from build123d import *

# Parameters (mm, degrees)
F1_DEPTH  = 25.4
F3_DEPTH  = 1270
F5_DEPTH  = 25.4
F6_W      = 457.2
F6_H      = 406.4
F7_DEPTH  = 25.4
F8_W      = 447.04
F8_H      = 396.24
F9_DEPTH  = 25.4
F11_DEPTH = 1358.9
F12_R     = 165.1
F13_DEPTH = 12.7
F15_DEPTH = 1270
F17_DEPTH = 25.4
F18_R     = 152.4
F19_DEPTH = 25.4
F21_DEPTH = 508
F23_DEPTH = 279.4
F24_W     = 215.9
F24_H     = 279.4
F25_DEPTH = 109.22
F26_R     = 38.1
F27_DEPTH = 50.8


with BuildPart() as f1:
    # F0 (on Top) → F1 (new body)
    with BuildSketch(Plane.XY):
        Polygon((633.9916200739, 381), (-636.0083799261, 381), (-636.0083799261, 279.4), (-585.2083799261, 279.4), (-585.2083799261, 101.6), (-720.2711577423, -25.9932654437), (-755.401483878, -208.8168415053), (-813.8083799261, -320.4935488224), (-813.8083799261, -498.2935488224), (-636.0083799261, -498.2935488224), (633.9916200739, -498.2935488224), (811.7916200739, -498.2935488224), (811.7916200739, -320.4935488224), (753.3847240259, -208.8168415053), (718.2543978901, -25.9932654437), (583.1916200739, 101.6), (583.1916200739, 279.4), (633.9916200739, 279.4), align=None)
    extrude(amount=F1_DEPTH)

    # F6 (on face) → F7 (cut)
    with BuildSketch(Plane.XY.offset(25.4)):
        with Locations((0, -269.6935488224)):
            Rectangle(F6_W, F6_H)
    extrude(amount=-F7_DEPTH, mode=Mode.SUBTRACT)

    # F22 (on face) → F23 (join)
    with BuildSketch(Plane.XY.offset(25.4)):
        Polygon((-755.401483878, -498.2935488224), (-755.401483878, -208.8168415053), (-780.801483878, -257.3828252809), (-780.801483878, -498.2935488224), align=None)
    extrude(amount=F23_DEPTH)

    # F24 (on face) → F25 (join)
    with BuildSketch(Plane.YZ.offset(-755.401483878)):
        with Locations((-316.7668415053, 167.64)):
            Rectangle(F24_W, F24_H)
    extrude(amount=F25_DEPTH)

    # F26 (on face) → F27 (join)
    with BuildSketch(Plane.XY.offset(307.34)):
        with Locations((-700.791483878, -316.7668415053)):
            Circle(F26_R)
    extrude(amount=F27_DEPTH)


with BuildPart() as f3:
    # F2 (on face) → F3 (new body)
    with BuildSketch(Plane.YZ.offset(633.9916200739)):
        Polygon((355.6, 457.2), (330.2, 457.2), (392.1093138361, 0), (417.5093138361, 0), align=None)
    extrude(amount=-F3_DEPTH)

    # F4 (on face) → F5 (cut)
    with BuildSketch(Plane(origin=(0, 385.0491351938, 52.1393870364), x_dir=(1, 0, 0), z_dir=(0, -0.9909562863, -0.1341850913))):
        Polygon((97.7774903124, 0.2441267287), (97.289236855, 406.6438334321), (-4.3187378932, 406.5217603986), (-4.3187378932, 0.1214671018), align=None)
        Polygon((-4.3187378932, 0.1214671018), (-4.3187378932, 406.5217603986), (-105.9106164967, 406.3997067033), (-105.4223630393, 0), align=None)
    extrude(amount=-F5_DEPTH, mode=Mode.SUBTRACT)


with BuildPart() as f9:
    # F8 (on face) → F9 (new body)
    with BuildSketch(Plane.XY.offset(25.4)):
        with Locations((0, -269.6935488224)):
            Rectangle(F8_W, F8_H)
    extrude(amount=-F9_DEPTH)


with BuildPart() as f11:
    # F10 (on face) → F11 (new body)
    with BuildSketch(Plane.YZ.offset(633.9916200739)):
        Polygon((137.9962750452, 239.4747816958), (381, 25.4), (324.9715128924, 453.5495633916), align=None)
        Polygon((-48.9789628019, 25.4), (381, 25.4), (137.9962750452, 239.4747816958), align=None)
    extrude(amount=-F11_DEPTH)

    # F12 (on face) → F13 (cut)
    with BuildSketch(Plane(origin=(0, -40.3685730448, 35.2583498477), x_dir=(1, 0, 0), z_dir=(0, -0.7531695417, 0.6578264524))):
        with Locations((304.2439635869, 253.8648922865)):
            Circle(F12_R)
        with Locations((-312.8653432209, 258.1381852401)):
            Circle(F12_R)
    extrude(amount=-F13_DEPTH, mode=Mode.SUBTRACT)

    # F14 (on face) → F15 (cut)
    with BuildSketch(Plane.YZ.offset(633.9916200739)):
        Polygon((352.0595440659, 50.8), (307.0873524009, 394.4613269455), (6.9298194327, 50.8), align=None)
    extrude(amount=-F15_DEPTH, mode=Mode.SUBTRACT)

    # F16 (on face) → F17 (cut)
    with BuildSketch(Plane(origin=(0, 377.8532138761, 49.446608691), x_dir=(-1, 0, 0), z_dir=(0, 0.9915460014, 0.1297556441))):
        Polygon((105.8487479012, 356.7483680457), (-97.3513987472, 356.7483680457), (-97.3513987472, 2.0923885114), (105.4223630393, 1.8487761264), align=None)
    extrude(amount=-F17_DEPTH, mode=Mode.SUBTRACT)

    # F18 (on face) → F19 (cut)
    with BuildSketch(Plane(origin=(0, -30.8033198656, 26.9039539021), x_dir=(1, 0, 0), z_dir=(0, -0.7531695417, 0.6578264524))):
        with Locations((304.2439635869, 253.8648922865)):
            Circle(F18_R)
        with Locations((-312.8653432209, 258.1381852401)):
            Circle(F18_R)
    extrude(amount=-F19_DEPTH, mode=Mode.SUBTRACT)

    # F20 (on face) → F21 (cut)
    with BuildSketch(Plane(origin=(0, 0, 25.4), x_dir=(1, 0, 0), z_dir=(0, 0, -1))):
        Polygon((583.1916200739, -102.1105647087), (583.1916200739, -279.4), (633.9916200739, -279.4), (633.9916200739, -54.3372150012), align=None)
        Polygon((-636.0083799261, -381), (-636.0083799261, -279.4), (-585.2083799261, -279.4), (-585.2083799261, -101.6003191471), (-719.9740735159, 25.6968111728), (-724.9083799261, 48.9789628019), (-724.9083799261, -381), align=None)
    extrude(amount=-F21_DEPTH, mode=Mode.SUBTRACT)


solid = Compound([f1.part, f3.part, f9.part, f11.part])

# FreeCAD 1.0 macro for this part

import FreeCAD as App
import Part
import Sketcher
from FreeCAD import Vector
Q = App.Units.Quantity

doc = App.newDocument("Part")
body = doc.addObject("PartDesign::Body", "Body")

# Sketch on XY plane
sketch1 = body.newObject("Sketcher::SketchObject", "Sketch")
sketch1.AttachmentSupport = (doc.getObject("XY_Plane"), [""])
sketch1.MapMode = "FlatFace"
sketch1.addGeometry([
    Part.LineSegment(Vector(634, 381, 0), Vector(-636, 381, 0)),  # 0
    Part.LineSegment(Vector(-636, 381, 0), Vector(-636, 279, 0)),  # 1
    Part.LineSegment(Vector(-636, 279, 0), Vector(-585, 279, 0)),  # 2
    Part.LineSegment(Vector(-585, 279, 0), Vector(-585, 102, 0)),  # 3
    Part.LineSegment(Vector(-585, 102, 0), Vector(-720, -26, 0)),  # 4
    Part.LineSegment(Vector(-720, -26, 0), Vector(-755, -209, 0)),  # 5
    Part.LineSegment(Vector(-755, -209, 0), Vector(-814, -320, 0)),  # 6
    Part.LineSegment(Vector(-814, -320, 0), Vector(-814, -498, 0)),  # 7
    Part.LineSegment(Vector(-814, -498, 0), Vector(812, -498, 0)),  # 8
    Part.LineSegment(Vector(812, -498, 0), Vector(812, -320, 0)),  # 9
    Part.LineSegment(Vector(812, -320, 0), Vector(753, -209, 0)),  # 10
    Part.LineSegment(Vector(753, -209, 0), Vector(718, -26, 0)),  # 11
    Part.LineSegment(Vector(718, -26, 0), Vector(583, 102, 0)),  # 12
    Part.LineSegment(Vector(583, 102, 0), Vector(583, 279, 0)),  # 13
    Part.LineSegment(Vector(583, 279, 0), Vector(634, 279, 0)),  # 14
    Part.LineSegment(Vector(634, 279, 0), Vector(634, 381, 0)),  # 15
], False)
sketch1.addConstraint([
    Sketcher.Constraint("Coincident", 0, 2, 1, 1),
    Sketcher.Constraint("Coincident", 1, 2, 2, 1),
    Sketcher.Constraint("Coincident", 2, 2, 3, 1),
    Sketcher.Constraint("Coincident", 3, 2, 4, 1),
    Sketcher.Constraint("Coincident", 4, 2, 5, 1),
    Sketcher.Constraint("Coincident", 5, 2, 6, 1),
    Sketcher.Constraint("Coincident", 6, 2, 7, 1),
    Sketcher.Constraint("Coincident", 7, 2, 8, 1),
    Sketcher.Constraint("Coincident", 8, 2, 9, 1),
    Sketcher.Constraint("Coincident", 9, 2, 10, 1),
    Sketcher.Constraint("Coincident", 10, 2, 11, 1),
    Sketcher.Constraint("Coincident", 11, 2, 12, 1),
    Sketcher.Constraint("Coincident", 12, 2, 13, 1),
    Sketcher.Constraint("Coincident", 13, 2, 14, 1),
    Sketcher.Constraint("Coincident", 14, 2, 15, 1),
    Sketcher.Constraint("Coincident", 15, 2, 0, 1),
    Sketcher.Constraint("Horizontal", 0),
    Sketcher.Constraint("Vertical", 1),
    Sketcher.Constraint("Horizontal", 2),
    Sketcher.Constraint("Vertical", 3),
    Sketcher.Constraint("Vertical", 7),
    Sketcher.Constraint("Horizontal", 8),
    Sketcher.Constraint("Vertical", 9),
    Sketcher.Constraint("Vertical", 13),
    Sketcher.Constraint("Horizontal", 14),
    Sketcher.Constraint("Vertical", 15),
    Sketcher.Constraint("Horizontal", 6, 2, 9, 2),
    Sketcher.Constraint("Horizontal", 5, 2, 10, 2),
    Sketcher.Constraint("Horizontal", 4, 2, 11, 2),
    Sketcher.Constraint("Horizontal", 3, 2, 12, 2),
    Sketcher.Constraint("Horizontal", 2, 2, 13, 2),
    Sketcher.Constraint("Equal", 2, 14),
    Sketcher.Constraint("Equal", 3, 7),
    Sketcher.Constraint("Equal", 6, 10),
    Sketcher.Constraint("Equal", 5, 11),
    Sketcher.Constraint("Equal", 4, 12),
    Sketcher.Constraint("DistanceX", 0, 2, 0, 1, Q("50 in")),
    Sketcher.Constraint("DistanceX", 2, 1, 2, 2, Q("2 in")),
    Sketcher.Constraint("DistanceX", 8, 1, 8, 2, Q("64 in")),
    Sketcher.Constraint("DistanceY", 1, 2, 1, 1, Q("4 in")),
    Sketcher.Constraint("DistanceY", 3, 2, 3, 1, Q("7 in")),
    Sketcher.Constraint("DistanceY", -1, 1, 0, 2, Q("15 in")),
    Sketcher.Constraint("DistanceX", 0, 2, -1, 1, Q("25.0397 in")),
    Sketcher.Constraint("DistanceY", 5, 2, -1, 1, Q("208.816842 mm")),
    Sketcher.Constraint("DistanceY", 6, 2, -1, 1, Q("320.493549 mm")),
    Sketcher.Constraint("Distance", 4, Q("185.800956 mm")),
    Sketcher.Constraint("Distance", 5, Q("186.168203 mm")),
    Sketcher.Constraint("Distance", 6, Q("126.027983 mm")),
])
pad1 = body.newObject("PartDesign::Pad", "Pad")
pad1.Profile = sketch1
pad1.Length = Q("1 in")

# Sketch on XY plane
sketch2 = body.newObject("Sketcher::SketchObject", "Sketch001")
sketch2.AttachmentSupport = (doc.getObject("XY_Plane"), [""])
sketch2.MapMode = "FlatFace"
sketch2.AttachmentOffset = App.Placement(Vector(0, 0, 1 * 25.4), App.Rotation())
sketch2.addGeometry([
    Part.LineSegment(Vector(-229, -66, 0), Vector(-229, -473, 0)),
    Part.LineSegment(Vector(-229, -473, 0), Vector(229, -473, 0)),
    Part.LineSegment(Vector(229, -473, 0), Vector(229, -66, 0)),
    Part.LineSegment(Vector(229, -66, 0), Vector(-229, -66, 0)),
], False)
sketch2.addConstraint([
    Sketcher.Constraint("Coincident", 0, 2, 1, 1),
    Sketcher.Constraint("Coincident", 1, 2, 2, 1),
    Sketcher.Constraint("Coincident", 2, 2, 3, 1),
    Sketcher.Constraint("Coincident", 3, 2, 0, 1),
    Sketcher.Constraint("Vertical", 0),
    Sketcher.Constraint("Horizontal", 1),
    Sketcher.Constraint("Vertical", 2),
    Sketcher.Constraint("Horizontal", 3),
    Sketcher.Constraint("DistanceX", 1, 1, 1, 2, Q("18 in")),
    Sketcher.Constraint("DistanceY", 0, 2, 0, 1, Q("16 in")),
    Sketcher.Constraint("DistanceX", 0, 2, -1, 1, Q("9 in")),
    Sketcher.Constraint("DistanceY", 0, 2, -1, 1, Q("472.893549 mm")),
])
pocket1 = body.newObject("PartDesign::Pocket", "Pocket")
pocket1.Profile = sketch2
pocket1.Length = Q("1 in")

# Sketch on XY plane
sketch3 = body.newObject("Sketcher::SketchObject", "Sketch002")
sketch3.AttachmentSupport = (doc.getObject("XY_Plane"), [""])
sketch3.MapMode = "FlatFace"
sketch3.AttachmentOffset = App.Placement(Vector(0, 0, 1 * 25.4), App.Rotation())
sketch3.addGeometry([
    Part.LineSegment(Vector(-755, -498, 0), Vector(-755, -209, 0)),
    Part.LineSegment(Vector(-755, -209, 0), Vector(-781, -257, 0)),
    Part.LineSegment(Vector(-781, -257, 0), Vector(-781, -498, 0)),
    Part.LineSegment(Vector(-781, -498, 0), Vector(-755, -498, 0)),
], False)
sketch3.addConstraint([
    Sketcher.Constraint("Coincident", 0, 2, 1, 1),
    Sketcher.Constraint("Coincident", 1, 2, 2, 1),
    Sketcher.Constraint("Coincident", 2, 2, 3, 1),
    Sketcher.Constraint("Coincident", 3, 2, 0, 1),
    Sketcher.Constraint("Vertical", 0),
    Sketcher.Constraint("Vertical", 2),
    Sketcher.Constraint("Horizontal", 3),
    Sketcher.Constraint("DistanceX", 3, 1, 3, 2, Q("1 in")),
    Sketcher.Constraint("Distance", 1, Q("54.807069 mm")),
    Sketcher.Constraint("DistanceY", 0, 1, 0, 2, Q("289.476707 mm")),
    Sketcher.Constraint("DistanceY", 0, 2, -1, 1, Q("208.816842 mm")),
    Sketcher.Constraint("DistanceX", 0, 2, -1, 1, Q("755.401484 mm")),
])
pad2 = body.newObject("PartDesign::Pad", "Pad001")
pad2.Profile = sketch3
pad2.Length = Q("11 in")

# Sketch on YZ plane
sketch4 = body.newObject("Sketcher::SketchObject", "Sketch003")
sketch4.AttachmentSupport = (doc.getObject("YZ_Plane"), [""])
sketch4.MapMode = "FlatFace"
sketch4.AttachmentOffset = App.Placement(Vector(0, 0, -755.401484), App.Rotation())
sketch4.addGeometry([
    Part.LineSegment(Vector(-425, 307, 0), Vector(-425, 28, 0)),
    Part.LineSegment(Vector(-425, 28, 0), Vector(-209, 28, 0)),
    Part.LineSegment(Vector(-209, 28, 0), Vector(-209, 307, 0)),
    Part.LineSegment(Vector(-209, 307, 0), Vector(-425, 307, 0)),
], False)
sketch4.addConstraint([
    Sketcher.Constraint("Coincident", 0, 2, 1, 1),
    Sketcher.Constraint("Coincident", 1, 2, 2, 1),
    Sketcher.Constraint("Coincident", 2, 2, 3, 1),
    Sketcher.Constraint("Coincident", 3, 2, 0, 1),
    Sketcher.Constraint("Vertical", 0),
    Sketcher.Constraint("Horizontal", 1),
    Sketcher.Constraint("Vertical", 2),
    Sketcher.Constraint("Horizontal", 3),
    Sketcher.Constraint("DistanceY", 0, 2, 0, 1, Q("11 in")),
    Sketcher.Constraint("DistanceX", 1, 1, 1, 2, Q("8.5 in")),
    Sketcher.Constraint("DistanceY", -1, 1, 0, 2, Q("1.1 in")),
    Sketcher.Constraint("DistanceX", 0, 2, -1, 1, Q("424.716842 mm")),
])
pad3 = body.newObject("PartDesign::Pad", "Pad002")
pad3.Profile = sketch4
pad3.Length = Q("4.3 in")

# Sketch on XY plane
sketch5 = body.newObject("Sketcher::SketchObject", "Sketch004")
sketch5.AttachmentSupport = (doc.getObject("XY_Plane"), [""])
sketch5.MapMode = "FlatFace"
sketch5.AttachmentOffset = App.Placement(Vector(0, 0, 12.1 * 25.4), App.Rotation())
sketch5.addGeometry(Part.Circle(Vector(-701, -317, 0), Vector(0, 0, 1), 38), False)
sketch5.addConstraint([
    Sketcher.Constraint("Diameter", 0, Q("3 in")),
    Sketcher.Constraint("DistanceY", 0, 3, -1, 1, Q("316.766842 mm")),
    Sketcher.Constraint("DistanceX", 0, 3, -1, 1, Q("700.791484 mm")),
])
pad4 = body.newObject("PartDesign::Pad", "Pad003")
pad4.Profile = sketch5
pad4.Length = Q("2 in")
body2 = doc.addObject("PartDesign::Body", "Body001")

# Sketch on YZ plane
sketch6 = body2.newObject("Sketcher::SketchObject", "Sketch005")
sketch6.AttachmentSupport = (doc.getObject("YZ_Plane001"), [""])
sketch6.MapMode = "FlatFace"
sketch6.AttachmentOffset = App.Placement(Vector(0, 0, 24.9603 * 25.4), App.Rotation())
sketch6.addGeometry([
    Part.LineSegment(Vector(356, 457, 0), Vector(330, 457, 0)),
    Part.LineSegment(Vector(330, 457, 0), Vector(392, 0, 0)),
    Part.LineSegment(Vector(392, 0, 0), Vector(418, 0, 0)),
    Part.LineSegment(Vector(418, 0, 0), Vector(356, 457, 0)),
], False)
sketch6.addConstraint([
    Sketcher.Constraint("Coincident", 0, 2, 1, 1),
    Sketcher.Constraint("Coincident", 1, 2, 2, 1),
    Sketcher.Constraint("Coincident", 2, 2, 3, 1),
    Sketcher.Constraint("Coincident", 3, 2, 0, 1),
    Sketcher.Constraint("Horizontal", 0),
    Sketcher.Constraint("Horizontal", 2),
    Sketcher.Constraint("PointOnObject", 1, 2, -1),
    Sketcher.Constraint("Parallel", 1, 3),
    Sketcher.Constraint("DistanceX", 0, 2, 0, 1, Q("1 in")),
    Sketcher.Constraint("DistanceX", -1, 1, 0, 2, Q("13 in")),
    Sketcher.Constraint("DistanceY", -1, 1, 0, 2, Q("18 in")),
    Sketcher.Constraint("Distance", 1, Q("461.372521 mm")),
])
pad5 = body2.newObject("PartDesign::Pad", "Pad004")
pad5.Profile = sketch6
pad5.Length = Q("50 in")
pad5.Reversed = True

# Sketch on an angled plane
sketch7 = body2.newObject("Sketcher::SketchObject", "Sketch006")
sketch7.Placement = App.Placement(Vector(0, 385.049135, 52.139387), App.Rotation(Vector(1, 0, 0), Vector(0, -0.134185091, 0.990956286), Vector(0, -0.990956286, -0.134185091), "ZXY"))
sketch7.addGeometry([
    Part.LineSegment(Vector(98, 0, 0), Vector(97, 407, 0)),
    Part.LineSegment(Vector(97, 407, 0), Vector(-106, 406, 0)),
    Part.LineSegment(Vector(-106, 406, 0), Vector(-105, 0, 0)),
    Part.LineSegment(Vector(-105, 0, 0), Vector(98, 0, 0)),
], False)
sketch7.addConstraint([
    Sketcher.Constraint("Coincident", 0, 2, 1, 1),
    Sketcher.Constraint("Coincident", 1, 2, 2, 1),
    Sketcher.Constraint("Coincident", 2, 2, 3, 1),
    Sketcher.Constraint("Coincident", 3, 2, 0, 1),
    Sketcher.Constraint("PointOnObject", 2, 2, -1),
    Sketcher.Constraint("Perpendicular", 0, 1),
    Sketcher.Constraint("Perpendicular", 1, 2),
    Sketcher.Constraint("Perpendicular", 2, 3),
    Sketcher.Constraint("Distance", 0, Q("16 in")),
    Sketcher.Constraint("Distance", 1, Q("8 in")),
    Sketcher.Constraint("DistanceX", 2, 2, 0, 2, Q("202.7116 mm")),
    Sketcher.Constraint("DistanceX", -1, 1, 3, 2, Q("97.77749 mm")),
])
pocket2 = body2.newObject("PartDesign::Pocket", "Pocket001")
pocket2.Profile = sketch7
pocket2.Length = Q("1 in")
body3 = doc.addObject("PartDesign::Body", "Body002")

# Sketch on XY plane
sketch8 = body3.newObject("Sketcher::SketchObject", "Sketch007")
sketch8.AttachmentSupport = (doc.getObject("XY_Plane002"), [""])
sketch8.MapMode = "FlatFace"
sketch8.AttachmentOffset = App.Placement(Vector(0, 0, 1 * 25.4), App.Rotation())
sketch8.addGeometry([
    Part.LineSegment(Vector(-224, -72, 0), Vector(-224, -468, 0)),
    Part.LineSegment(Vector(-224, -468, 0), Vector(224, -468, 0)),
    Part.LineSegment(Vector(224, -468, 0), Vector(224, -72, 0)),
    Part.LineSegment(Vector(224, -72, 0), Vector(-224, -72, 0)),
], False)
sketch8.addConstraint([
    Sketcher.Constraint("Coincident", 0, 2, 1, 1),
    Sketcher.Constraint("Coincident", 1, 2, 2, 1),
    Sketcher.Constraint("Coincident", 2, 2, 3, 1),
    Sketcher.Constraint("Coincident", 3, 2, 0, 1),
    Sketcher.Constraint("Vertical", 0),
    Sketcher.Constraint("Horizontal", 1),
    Sketcher.Constraint("Vertical", 2),
    Sketcher.Constraint("Horizontal", 3),
    Sketcher.Constraint("DistanceX", 1, 1, 1, 2, Q("17.6 in")),
    Sketcher.Constraint("DistanceY", 0, 2, 0, 1, Q("15.6 in")),
    Sketcher.Constraint("DistanceX", 0, 2, -1, 1, Q("8.8 in")),
    Sketcher.Constraint("DistanceY", 0, 2, -1, 1, Q("467.813549 mm")),
])
pad6 = body3.newObject("PartDesign::Pad", "Pad005")
pad6.Profile = sketch8
pad6.Length = Q("1 in")
pad6.Reversed = True
body4 = doc.addObject("PartDesign::Body", "Body003")

# Sketch on YZ plane
sketch9 = body4.newObject("Sketcher::SketchObject", "Sketch008")
sketch9.AttachmentSupport = (doc.getObject("YZ_Plane003"), [""])
sketch9.MapMode = "FlatFace"
sketch9.AttachmentOffset = App.Placement(Vector(0, 0, 24.9603 * 25.4), App.Rotation())
sketch9.addGeometry([
    Part.LineSegment(Vector(381, 25, 0), Vector(325, 454, 0)),
    Part.LineSegment(Vector(325, 454, 0), Vector(-49, 25, 0)),
    Part.LineSegment(Vector(-49, 25, 0), Vector(381, 25, 0)),
], False)
sketch9.addConstraint([
    Sketcher.Constraint("Coincident", 0, 2, 1, 1),
    Sketcher.Constraint("Coincident", 1, 2, 2, 1),
    Sketcher.Constraint("Coincident", 2, 2, 0, 1),
    Sketcher.Constraint("Horizontal", 2),
    Sketcher.Constraint("Distance", 0, Q("17 in")),
    Sketcher.Constraint("DistanceY", -1, 1, 1, 2, Q("1 in")),
    Sketcher.Constraint("DistanceX", -1, 1, 2, 2, Q("15 in")),
    Sketcher.Constraint("DistanceX", 2, 1, 2, 2, Q("429.978963 mm")),
    Sketcher.Constraint("Distance", 1, Q("568.463725 mm")),
])
pad7 = body4.newObject("PartDesign::Pad", "Pad006")
pad7.Profile = sketch9
pad7.Length = Q("53.5 in")
pad7.Reversed = True

# Sketch on an angled plane
sketch10 = body4.newObject("Sketcher::SketchObject", "Sketch009")
sketch10.Placement = App.Placement(Vector(0, -40.368573, 35.25835), App.Rotation(Vector(1, 0, 0), Vector(0, 0.657826452, 0.753169542), Vector(0, -0.753169542, 0.657826452), "ZXY"))
sketch10.addGeometry([
    Part.Circle(Vector(304, 254, 0), Vector(0, 0, 1), 165),
    Part.Circle(Vector(-313, 258, 0), Vector(0, 0, 1), 165),
], False)
sketch10.addConstraint([
    Sketcher.Constraint("Equal", 0, 1),
    Sketcher.Constraint("Diameter", 0, Q("13 in")),
    Sketcher.Constraint("DistanceX", -1, 1, 0, 3, Q("304.243964 mm")),
    Sketcher.Constraint("DistanceY", -1, 1, 0, 3, Q("253.864892 mm")),
    Sketcher.Constraint("DistanceX", 1, 3, -1, 1, Q("312.865343 mm")),
    Sketcher.Constraint("DistanceY", -1, 1, 1, 3, Q("258.138185 mm")),
])
pocket3 = body4.newObject("PartDesign::Pocket", "Pocket002")
pocket3.Profile = sketch10
pocket3.Length = Q("0.5 in")

# Sketch on YZ plane
sketch11 = body4.newObject("Sketcher::SketchObject", "Sketch010")
sketch11.AttachmentSupport = (doc.getObject("YZ_Plane003"), [""])
sketch11.MapMode = "FlatFace"
sketch11.AttachmentOffset = App.Placement(Vector(0, 0, 24.9603 * 25.4), App.Rotation())
sketch11.addGeometry([
    Part.LineSegment(Vector(352, 51, 0), Vector(307, 394, 0)),
    Part.LineSegment(Vector(307, 394, 0), Vector(7, 51, 0)),
    Part.LineSegment(Vector(7, 51, 0), Vector(352, 51, 0)),
], False)
sketch11.addConstraint([
    Sketcher.Constraint("Coincident", 0, 2, 1, 1),
    Sketcher.Constraint("Coincident", 1, 2, 2, 1),
    Sketcher.Constraint("Coincident", 2, 2, 0, 1),
    Sketcher.Constraint("Horizontal", 2),
    Sketcher.Constraint("DistanceY", -1, 1, 1, 2, Q("2 in")),
    Sketcher.Constraint("Distance", 0, Q("346.59141 mm")),
    Sketcher.Constraint("Distance", 1, Q("456.286809 mm")),
    Sketcher.Constraint("DistanceX", 2, 1, 2, 2, Q("345.129725 mm")),
    Sketcher.Constraint("DistanceX", -1, 1, 1, 2, Q("6.929819 mm")),
])
pocket4 = body4.newObject("PartDesign::Pocket", "Pocket003")
pocket4.Profile = sketch11
pocket4.Length = Q("50 in")

# Sketch on an angled plane
sketch12 = body4.newObject("Sketcher::SketchObject", "Sketch011")
sketch12.Placement = App.Placement(Vector(0, 377.853214, 49.446609), App.Rotation(Vector(-1, 0, 0), Vector(0, -0.129755644, 0.991546001), Vector(0, 0.991546001, 0.129755644), "ZXY"))
sketch12.addGeometry([
    Part.LineSegment(Vector(106, 357, 0), Vector(-97, 357, 0)),
    Part.LineSegment(Vector(-97, 357, 0), Vector(-97, 2, 0)),
    Part.LineSegment(Vector(-97, 2, 0), Vector(105, 2, 0)),
    Part.LineSegment(Vector(105, 2, 0), Vector(106, 357, 0)),
], False)
sketch12.addConstraint([
    Sketcher.Constraint("Coincident", 0, 2, 1, 1),
    Sketcher.Constraint("Coincident", 1, 2, 2, 1),
    Sketcher.Constraint("Coincident", 2, 2, 3, 1),
    Sketcher.Constraint("Coincident", 3, 2, 0, 1),
    Sketcher.Constraint("Horizontal", 0),
    Sketcher.Constraint("Vertical", 1),
    Sketcher.Constraint("Perpendicular", 2, 3),
    Sketcher.Constraint("DistanceY", 1, 2, 1, 1, Q("354.655979 mm")),
    Sketcher.Constraint("DistanceX", 0, 2, -1, 1, Q("97.351399 mm")),
    Sketcher.Constraint("Distance", 2, Q("202.773908 mm")),
    Sketcher.Constraint("DistanceX", 0, 2, 0, 1, Q("203.200147 mm")),
    Sketcher.Constraint("DistanceY", -1, 1, 1, 2, Q("2.092389 mm")),
])
pocket5 = body4.newObject("PartDesign::Pocket", "Pocket004")
pocket5.Profile = sketch12
pocket5.Length = Q("1 in")

# Sketch on an angled plane
sketch13 = body4.newObject("Sketcher::SketchObject", "Sketch012")
sketch13.Placement = App.Placement(Vector(0, -30.80332, 26.903954), App.Rotation(Vector(1, 0, 0), Vector(0, 0.657826452, 0.753169542), Vector(0, -0.753169542, 0.657826452), "ZXY"))
sketch13.addGeometry([
    Part.Circle(Vector(304, 254, 0), Vector(0, 0, 1), 152),
    Part.Circle(Vector(-313, 258, 0), Vector(0, 0, 1), 152),
], False)
sketch13.addConstraint([
    Sketcher.Constraint("Equal", 0, 1),
    Sketcher.Constraint("Diameter", 0, Q("12 in")),
    Sketcher.Constraint("DistanceX", -1, 1, 0, 3, Q("304.243964 mm")),
    Sketcher.Constraint("DistanceY", -1, 1, 0, 3, Q("253.864892 mm")),
    Sketcher.Constraint("DistanceX", 1, 3, -1, 1, Q("312.865343 mm")),
    Sketcher.Constraint("DistanceY", -1, 1, 1, 3, Q("258.138185 mm")),
])
pocket6 = body4.newObject("PartDesign::Pocket", "Pocket005")
pocket6.Profile = sketch13
pocket6.Length = Q("1 in")

# Sketch on XY plane
sketch14 = body4.newObject("Sketcher::SketchObject", "Sketch013")
sketch14.AttachmentSupport = (doc.getObject("XY_Plane003"), [""])
sketch14.MapMode = "FlatFace"
sketch14.AttachmentOffset = App.Placement(Vector(0, 0, 1 * 25.4), App.Rotation())
sketch14.addGeometry([
    Part.LineSegment(Vector(583, 102, 0), Vector(583, 279, 0)),  # 0
    Part.LineSegment(Vector(583, 279, 0), Vector(634, 279, 0)),  # 1
    Part.LineSegment(Vector(634, 279, 0), Vector(634, 54, 0)),  # 2
    Part.LineSegment(Vector(634, 54, 0), Vector(583, 102, 0)),  # 3
    Part.LineSegment(Vector(-636, 381, 0), Vector(-636, 279, 0)),  # 4
    Part.LineSegment(Vector(-636, 279, 0), Vector(-585, 279, 0)),  # 5
    Part.LineSegment(Vector(-585, 279, 0), Vector(-585, 102, 0)),  # 6
    Part.LineSegment(Vector(-585, 102, 0), Vector(-720, -26, 0)),  # 7
    Part.LineSegment(Vector(-720, -26, 0), Vector(-725, -49, 0)),  # 8
    Part.LineSegment(Vector(-725, -49, 0), Vector(-725, 381, 0)),  # 9
    Part.LineSegment(Vector(-725, 381, 0), Vector(-636, 381, 0)),  # 10
], False)
sketch14.addConstraint([
    Sketcher.Constraint("Coincident", 0, 2, 1, 1),
    Sketcher.Constraint("Coincident", 1, 2, 2, 1),
    Sketcher.Constraint("Coincident", 2, 2, 3, 1),
    Sketcher.Constraint("Coincident", 3, 2, 0, 1),
    Sketcher.Constraint("Coincident", 4, 2, 5, 1),
    Sketcher.Constraint("Coincident", 5, 2, 6, 1),
    Sketcher.Constraint("Coincident", 6, 2, 7, 1),
    Sketcher.Constraint("Coincident", 7, 2, 8, 1),
    Sketcher.Constraint("Coincident", 8, 2, 9, 1),
    Sketcher.Constraint("Coincident", 9, 2, 10, 1),
    Sketcher.Constraint("Coincident", 10, 2, 4, 1),
    Sketcher.Constraint("Vertical", 0),
    Sketcher.Constraint("Horizontal", 1),
    Sketcher.Constraint("Vertical", 2),
    Sketcher.Constraint("Vertical", 4),
    Sketcher.Constraint("Horizontal", 5),
    Sketcher.Constraint("Vertical", 6),
    Sketcher.Constraint("Vertical", 9),
    Sketcher.Constraint("Horizontal", 10),
    Sketcher.Constraint("Horizontal", 1, 2, 4, 2),
    Sketcher.Constraint("Equal", 1, 5),
    Sketcher.Constraint("DistanceX", 1, 1, 1, 2, Q("2 in")),
    Sketcher.Constraint("DistanceY", 4, 2, 4, 1, Q("4 in")),
    Sketcher.Constraint("DistanceX", 10, 1, 10, 2, Q("3.5 in")),
    Sketcher.Constraint("DistanceY", -1, 1, 0, 2, Q("11 in")),
    Sketcher.Constraint("DistanceX", 4, 2, 0, 2, Q("48 in")),
    Sketcher.Constraint("DistanceX", -1, 1, 0, 2, Q("22.9603 in")),
    Sketcher.Constraint("DistanceY", 6, 2, 6, 1, Q("177.799681 mm")),
    Sketcher.Constraint("DistanceY", 0, 1, 0, 2, Q("177.289435 mm")),
    Sketcher.Constraint("DistanceY", 2, 2, 2, 1, Q("225.062785 mm")),
    Sketcher.Constraint("DistanceY", 9, 1, 9, 2, Q("429.978963 mm")),
    Sketcher.Constraint("DistanceY", 7, 2, -1, 1, Q("25.696811 mm")),
    Sketcher.Constraint("Distance", 7, Q("185.381638 mm")),
])
pocket7 = body4.newObject("PartDesign::Pocket", "Pocket006")
pocket7.Profile = sketch14
pocket7.Length = Q("20 in")
pocket7.Reversed = True

doc.recompute()
